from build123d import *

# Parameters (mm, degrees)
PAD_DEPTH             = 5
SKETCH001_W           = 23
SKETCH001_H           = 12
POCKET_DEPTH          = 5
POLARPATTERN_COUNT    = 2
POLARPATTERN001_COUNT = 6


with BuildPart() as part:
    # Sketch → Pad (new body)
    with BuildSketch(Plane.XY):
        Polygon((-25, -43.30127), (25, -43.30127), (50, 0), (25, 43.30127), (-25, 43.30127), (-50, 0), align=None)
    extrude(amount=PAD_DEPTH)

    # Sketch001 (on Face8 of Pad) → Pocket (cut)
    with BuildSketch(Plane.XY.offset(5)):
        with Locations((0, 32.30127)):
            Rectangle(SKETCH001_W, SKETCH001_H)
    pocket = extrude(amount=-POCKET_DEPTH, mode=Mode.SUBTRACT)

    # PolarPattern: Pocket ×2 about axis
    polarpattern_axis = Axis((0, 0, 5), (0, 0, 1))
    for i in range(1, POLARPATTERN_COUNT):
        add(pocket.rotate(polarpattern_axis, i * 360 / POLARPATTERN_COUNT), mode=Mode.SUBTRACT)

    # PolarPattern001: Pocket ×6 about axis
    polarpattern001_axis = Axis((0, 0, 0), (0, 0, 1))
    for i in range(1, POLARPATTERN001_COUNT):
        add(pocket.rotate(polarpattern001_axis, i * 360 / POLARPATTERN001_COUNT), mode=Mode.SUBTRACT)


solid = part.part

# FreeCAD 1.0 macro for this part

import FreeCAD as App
import Part
import Sketcher

V = App.Vector
Q = App.Units.Quantity

doc = App.newDocument("Part")
params = doc.addObject("Spreadsheet::Sheet", "Params")
for row, (alias, value) in enumerate([
    ("sketch1_width", "50 mm"),
    ("sketch1_length", "50 mm"),
    ("pad1_length", "5 mm"),
    ("sketch2_width", "23 mm"),
    ("sketch2_height", "12 mm"),
    ("pocket1_length", "5 mm"),
], start=1):
    params.set(f"A{row}", alias)
    params.set(f"B{row}", "=" + value)
    params.setAlias(f"B{row}", alias)

body = doc.addObject("PartDesign::Body", "Body")

# Sketch on XY plane
sketch1 = body.newObject("Sketcher::SketchObject", "Sketch")
sketch1.AttachmentSupport = (doc.getObject("XY_Plane"), [""])
sketch1.MapMode = "FlatFace"
sketch1.addGeometry(Part.LineSegment(V(-25, -43, 0), V(25, -43, 0)), False)
sketch1.addGeometry(Part.LineSegment(V(25, -43, 0), V(50, 0, 0)), False)
sketch1.addGeometry(Part.LineSegment(V(50, 0, 0), V(25, 43, 0)), False)
sketch1.addGeometry(Part.LineSegment(V(25, 43, 0), V(-25, 43, 0)), False)
sketch1.addGeometry(Part.LineSegment(V(-25, 43, 0), V(-50, 0, 0)), False)
sketch1.addGeometry(Part.LineSegment(V(-50, 0, 0), V(-25, -43, 0)), False)
sketch1.addConstraint(Sketcher.Constraint("Coincident", 0, 2, 1, 1))
sketch1.addConstraint(Sketcher.Constraint("Coincident", 1, 2, 2, 1))
sketch1.addConstraint(Sketcher.Constraint("Coincident", 2, 2, 3, 1))
sketch1.addConstraint(Sketcher.Constraint("Coincident", 3, 2, 4, 1))
sketch1.addConstraint(Sketcher.Constraint("Coincident", 4, 2, 5, 1))
sketch1.addConstraint(Sketcher.Constraint("Coincident", 5, 2, 0, 1))
sketch1.addConstraint(Sketcher.Constraint("Horizontal", 0))
sketch1.addConstraint(Sketcher.Constraint("Horizontal", 3))
sketch1.addConstraint(Sketcher.Constraint("Symmetric", 0, 2, 3, 2, -1, 1))
sketch1.addConstraint(Sketcher.Constraint("Symmetric", 1, 2, 4, 2, -1, 1))
sketch1.addConstraint(Sketcher.Constraint("PointOnObject", 1, 2, -1))
sketch1.addConstraint(Sketcher.Constraint("Parallel", 2, 5))
sketch1.addConstraint(Sketcher.Constraint("Vertical", 0, 2, 2, 2))
sketch1.addConstraint(Sketcher.Constraint("DistanceX", 0, 1, 0, 2, Q("50 mm")))
sketch1.addConstraint(Sketcher.Constraint("Angle", 1, Q("60 deg")))
sketch1.addConstraint(Sketcher.Constraint("Distance", 1, Q("50 mm")))
sketch1.setExpression("Constraints[13]", "Params.sketch1_width")
sketch1.setExpression("Constraints[15]", "Params.sketch1_length")
pad1 = body.newObject("PartDesign::Pad", "Pad")
pad1.Profile = sketch1
pad1.setExpression("Length", "Params.pad1_length")

# Sketch on XY plane
sketch2 = body.newObject("Sketcher::SketchObject", "Sketch001")
sketch2.AttachmentSupport = (doc.getObject("XY_Plane"), [""])
sketch2.MapMode = "FlatFace"
sketch2.AttachmentOffset = App.Placement(V(0, 0, 5), App.Rotation())
sketch2.addGeometry(Part.LineSegment(V(-12, 38, 0), V(-12, 26, 0)), False)
sketch2.addGeometry(Part.LineSegment(V(-12, 26, 0), V(12, 26, 0)), False)
sketch2.addGeometry(Part.LineSegment(V(12, 26, 0), V(12, 38, 0)), False)
sketch2.addGeometry(Part.LineSegment(V(12, 38, 0), V(-12, 38, 0)), False)
sketch2.addConstraint(Sketcher.Constraint("Coincident", 0, 2, 1, 1))
sketch2.addConstraint(Sketcher.Constraint("Coincident", 1, 2, 2, 1))
sketch2.addConstraint(Sketcher.Constraint("Coincident", 2, 2, 3, 1))
sketch2.addConstraint(Sketcher.Constraint("Coincident", 3, 2, 0, 1))
sketch2.addConstraint(Sketcher.Constraint("Vertical", 0))
sketch2.addConstraint(Sketcher.Constraint("Horizontal", 1))
sketch2.addConstraint(Sketcher.Constraint("Vertical", 2))
sketch2.addConstraint(Sketcher.Constraint("Horizontal", 3))
sketch2.addConstraint(Sketcher.Constraint("DistanceX", 1, 1, 1, 2, Q("23 mm")))
sketch2.addConstraint(Sketcher.Constraint("DistanceY", 0, 2, 0, 1, Q("12 mm")))
sketch2.addConstraint(Sketcher.Constraint("DistanceX", 0, 2, -1, 1, Q("11.5 mm")))
sketch2.addConstraint(Sketcher.Constraint("DistanceY", -1, 1, 0, 2, Q("26.30127 mm")))
sketch2.setExpression("Constraints[8]", "Params.sketch2_width")
sketch2.setExpression("Constraints[9]", "Params.sketch2_height")
pocket1 = body.newObject("PartDesign::Pocket", "Pocket")
pocket1.Profile = sketch2
pocket1.setExpression("Length", "Params.pocket1_length")
doc.recompute()

polarpattern = body.newObject("PartDesign::PolarPattern", "PolarPattern")
polarpattern.Originals = [pocket1]
polarpattern.Axis = (doc.getObject("Z_Axis"), [""])
polarpattern.Angle = 360
polarpattern.Occurrences = 2
body.Tip = polarpattern
doc.recompute()

polarpattern2 = body.newObject("PartDesign::PolarPattern", "PolarPattern001")
polarpattern2.Originals = [pocket1]
polarpattern2.Axis = (doc.getObject("Z_Axis"), [""])
polarpattern2.Angle = 360
polarpattern2.Occurrences = 6
body.Tip = polarpattern2

doc.recompute()
